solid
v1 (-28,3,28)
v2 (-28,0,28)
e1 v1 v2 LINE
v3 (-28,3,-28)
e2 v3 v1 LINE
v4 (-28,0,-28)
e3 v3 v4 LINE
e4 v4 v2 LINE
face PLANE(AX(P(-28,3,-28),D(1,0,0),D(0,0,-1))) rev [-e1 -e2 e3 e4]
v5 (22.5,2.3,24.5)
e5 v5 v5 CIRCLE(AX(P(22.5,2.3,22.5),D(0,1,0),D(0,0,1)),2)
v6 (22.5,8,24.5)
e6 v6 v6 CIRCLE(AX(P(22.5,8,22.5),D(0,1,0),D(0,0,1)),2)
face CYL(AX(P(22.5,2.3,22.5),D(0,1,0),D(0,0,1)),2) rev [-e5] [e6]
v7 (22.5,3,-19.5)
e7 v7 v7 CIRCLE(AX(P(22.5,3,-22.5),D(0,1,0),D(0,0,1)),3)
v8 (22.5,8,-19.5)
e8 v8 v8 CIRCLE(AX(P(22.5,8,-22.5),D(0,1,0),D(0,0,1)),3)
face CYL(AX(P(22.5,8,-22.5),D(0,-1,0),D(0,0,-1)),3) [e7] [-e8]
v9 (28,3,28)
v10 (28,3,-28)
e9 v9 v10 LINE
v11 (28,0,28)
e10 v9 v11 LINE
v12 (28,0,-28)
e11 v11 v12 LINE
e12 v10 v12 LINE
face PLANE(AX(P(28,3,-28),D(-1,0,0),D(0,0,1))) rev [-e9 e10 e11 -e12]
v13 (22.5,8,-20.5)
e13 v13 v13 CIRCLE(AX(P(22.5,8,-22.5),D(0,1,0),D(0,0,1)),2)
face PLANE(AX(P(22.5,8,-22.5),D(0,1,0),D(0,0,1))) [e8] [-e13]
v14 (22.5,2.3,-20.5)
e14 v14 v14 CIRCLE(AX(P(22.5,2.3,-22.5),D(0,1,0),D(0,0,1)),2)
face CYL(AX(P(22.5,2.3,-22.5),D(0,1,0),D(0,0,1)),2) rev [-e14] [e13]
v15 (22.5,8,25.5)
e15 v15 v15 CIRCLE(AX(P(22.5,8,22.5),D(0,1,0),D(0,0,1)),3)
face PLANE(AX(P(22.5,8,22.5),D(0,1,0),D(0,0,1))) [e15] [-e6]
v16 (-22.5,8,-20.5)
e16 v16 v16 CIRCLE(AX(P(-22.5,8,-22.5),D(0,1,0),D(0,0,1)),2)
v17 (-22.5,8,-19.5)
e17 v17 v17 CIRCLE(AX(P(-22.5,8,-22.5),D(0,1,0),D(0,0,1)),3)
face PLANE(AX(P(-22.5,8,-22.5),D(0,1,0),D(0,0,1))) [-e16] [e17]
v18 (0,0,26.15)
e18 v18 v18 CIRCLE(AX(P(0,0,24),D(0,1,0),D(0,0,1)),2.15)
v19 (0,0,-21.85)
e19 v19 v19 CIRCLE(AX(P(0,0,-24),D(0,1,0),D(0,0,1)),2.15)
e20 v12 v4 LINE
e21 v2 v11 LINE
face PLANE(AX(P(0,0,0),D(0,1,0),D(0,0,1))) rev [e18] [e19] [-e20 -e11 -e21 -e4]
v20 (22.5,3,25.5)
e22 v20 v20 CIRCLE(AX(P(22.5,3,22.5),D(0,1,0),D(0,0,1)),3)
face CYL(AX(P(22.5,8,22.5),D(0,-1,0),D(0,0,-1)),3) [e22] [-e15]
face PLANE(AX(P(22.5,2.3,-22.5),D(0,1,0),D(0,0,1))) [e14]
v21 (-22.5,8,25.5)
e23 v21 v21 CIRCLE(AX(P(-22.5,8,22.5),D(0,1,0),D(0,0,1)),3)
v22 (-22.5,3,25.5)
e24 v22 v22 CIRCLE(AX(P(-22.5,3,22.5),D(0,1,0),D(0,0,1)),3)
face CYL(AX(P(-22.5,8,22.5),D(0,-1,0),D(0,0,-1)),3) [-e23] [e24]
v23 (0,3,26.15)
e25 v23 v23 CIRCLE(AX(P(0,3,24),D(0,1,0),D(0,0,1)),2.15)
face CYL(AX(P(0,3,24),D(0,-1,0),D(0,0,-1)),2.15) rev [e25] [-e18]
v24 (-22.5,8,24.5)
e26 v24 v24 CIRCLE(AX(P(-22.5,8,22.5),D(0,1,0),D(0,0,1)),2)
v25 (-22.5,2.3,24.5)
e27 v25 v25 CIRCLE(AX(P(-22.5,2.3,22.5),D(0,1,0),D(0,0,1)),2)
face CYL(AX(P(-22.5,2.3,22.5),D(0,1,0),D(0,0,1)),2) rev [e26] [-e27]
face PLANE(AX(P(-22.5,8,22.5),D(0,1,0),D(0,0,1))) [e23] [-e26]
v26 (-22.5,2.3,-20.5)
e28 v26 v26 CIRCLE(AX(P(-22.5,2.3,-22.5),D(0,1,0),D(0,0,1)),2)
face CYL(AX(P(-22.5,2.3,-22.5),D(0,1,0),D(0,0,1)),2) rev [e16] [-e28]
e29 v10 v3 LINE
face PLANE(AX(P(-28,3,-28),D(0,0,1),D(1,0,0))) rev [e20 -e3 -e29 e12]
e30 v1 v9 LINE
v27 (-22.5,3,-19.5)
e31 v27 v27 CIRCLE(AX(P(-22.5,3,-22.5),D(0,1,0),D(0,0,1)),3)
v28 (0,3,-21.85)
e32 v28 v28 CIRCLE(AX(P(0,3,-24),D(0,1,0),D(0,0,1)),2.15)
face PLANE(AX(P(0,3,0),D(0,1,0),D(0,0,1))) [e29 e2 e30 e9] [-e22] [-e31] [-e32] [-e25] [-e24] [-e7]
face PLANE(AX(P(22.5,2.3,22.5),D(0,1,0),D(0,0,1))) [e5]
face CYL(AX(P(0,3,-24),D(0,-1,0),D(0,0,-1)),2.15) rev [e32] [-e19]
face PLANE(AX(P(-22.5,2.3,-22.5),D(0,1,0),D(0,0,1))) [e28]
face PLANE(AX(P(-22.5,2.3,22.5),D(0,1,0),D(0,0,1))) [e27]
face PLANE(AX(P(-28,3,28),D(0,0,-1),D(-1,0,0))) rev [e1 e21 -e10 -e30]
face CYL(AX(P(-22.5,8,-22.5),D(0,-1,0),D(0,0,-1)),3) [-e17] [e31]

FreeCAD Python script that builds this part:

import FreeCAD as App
import Part
import Sketcher


def add_polygon(sketch, points):
    """Adds a closed chain of lines whose ends are joined by coincident constraints."""
    first, n = sketch.GeometryCount, len(points)
    for a, b in zip(points, points[1:] + points[:1]):
        sketch.addGeometry(Part.LineSegment(App.Vector(*a, 0), App.Vector(*b, 0)), False)
    for i in range(n):
        sketch.addConstraint(Sketcher.Constraint("Coincident", first + i, 2, first + (i + 1) % n, 1))

doc = App.newDocument("Part")
body = doc.addObject("PartDesign::Body", "Body")

# Sketch on XZ plane
sketch1 = body.newObject("Sketcher::SketchObject", "Sketch")
sketch1.AttachmentSupport = (doc.getObject("XZ_Plane"), [""])
sketch1.MapMode = "FlatFace"
add_polygon(sketch1, [(-28, -28), (-28, 28), (28, 28), (28, -28)])  # lines 0-3
sketch1.addConstraint([
    Sketcher.Constraint("Vertical", 0),
    Sketcher.Constraint("Horizontal", 1),
    Sketcher.Constraint("Vertical", 2),
    Sketcher.Constraint("Horizontal", 3),
    Sketcher.Constraint("Symmetric", 0, 2, 2, 2, -1, 1),
    Sketcher.Constraint("Equal", 3, 0),
    Sketcher.Constraint("DistanceX", 1, 1, 1, 2, 56.0),
])
pad1 = body.newObject("PartDesign::Pad", "Pad")
pad1.Profile = sketch1
pad1.Length = 3
pad1.Reversed = True

# Sketch on XZ plane
sketch2 = body.newObject("Sketcher::SketchObject", "Sketch001")
sketch2.AttachmentSupport = (doc.getObject("XZ_Plane"), [""])
sketch2.MapMode = "FlatFace"
sketch2.AttachmentOffset = App.Placement(App.Vector(0, 0, -3), App.Rotation())
sketch2.addGeometry([
    Part.Circle(App.Vector(22.5, 22.5, 0), App.Vector(0, 0, 1), 3),
    Part.Circle(App.Vector(-22.5, 22.5, 0), App.Vector(0, 0, 1), 3),
    Part.Circle(App.Vector(22.5, -22.5, 0), App.Vector(0, 0, 1), 3),
    Part.Circle(App.Vector(-22.5, -22.5, 0), App.Vector(0, 0, 1), 3),
], False)
sketch2.addConstraint([
    Sketcher.Constraint("Equal", 0, 1),
    Sketcher.Constraint("Equal", 1, 2),
    Sketcher.Constraint("Equal", 2, 3),
    Sketcher.Constraint("Symmetric", 1, 3, 2, 3, -1, 1),
    Sketcher.Constraint("Symmetric", 0, 3, 3, 3, -1, 1),
    Sketcher.Constraint("Symmetric", 0, 3, 1, 3, -2),
    Sketcher.Constraint("Diameter", 0, 6.0),
    Sketcher.Constraint("DistanceX", 1, 3, 0, 3, 45.0),
    Sketcher.Constraint("DistanceY", 2, 3, 0, 3, 45.0),
])
pad2 = body.newObject("PartDesign::Pad", "Pad001")
pad2.Profile = sketch2
pad2.Length = 5
pad2.Reversed = True

# Sketch on XZ plane
sketch3 = body.newObject("Sketcher::SketchObject", "Sketch002")
sketch3.AttachmentSupport = (doc.getObject("XZ_Plane"), [""])
sketch3.MapMode = "FlatFace"
sketch3.AttachmentOffset = App.Placement(App.Vector(0, 0, -8), App.Rotation())
sketch3.addGeometry([
    Part.Circle(App.Vector(22.5, 22.5, 0), App.Vector(0, 0, 1), 2),
    Part.Circle(App.Vector(-22.5, 22.5, 0), App.Vector(0, 0, 1), 2),
    Part.Circle(App.Vector(22.5, -22.5, 0), App.Vector(0, 0, 1), 2),
    Part.Circle(App.Vector(-22.5, -22.5, 0), App.Vector(0, 0, 1), 2),
], False)
sketch3.addConstraint([
    Sketcher.Constraint("Equal", 0, 1),
    Sketcher.Constraint("Equal", 1, 2),
    Sketcher.Constraint("Equal", 2, 3),
    Sketcher.Constraint("Symmetric", 1, 3, 2, 3, -1, 1),
    Sketcher.Constraint("Symmetric", 0, 3, 3, 3, -1, 1),
    Sketcher.Constraint("Symmetric", 0, 3, 1, 3, -2),
    Sketcher.Constraint("Diameter", 0, 4.0),
    Sketcher.Constraint("DistanceX", 1, 3, 0, 3, 45.0),
    Sketcher.Constraint("DistanceY", 2, 3, 0, 3, 45.0),
])
pocket1 = body.newObject("PartDesign::Pocket", "Pocket")
pocket1.Profile = sketch3
pocket1.Length = 5.7
pocket1.Reversed = True

# Sketch on XZ plane
sketch4 = body.newObject("Sketcher::SketchObject", "Sketch003")
sketch4.AttachmentSupport = (doc.getObject("XZ_Plane"), [""])
sketch4.MapMode = "FlatFace"
sketch4.addGeometry([
    Part.Circle(App.Vector(0, 24, 0), App.Vector(0, 0, 1), 2.1),
    Part.Circle(App.Vector(0, -24, 0), App.Vector(0, 0, 1), 2.1),
], False)
sketch4.addConstraint([
    Sketcher.Constraint("Equal", 0, 1),
    Sketcher.Constraint("Symmetric", 0, 3, 1, 3, -1, 1),
    Sketcher.Constraint("PointOnObject", 0, 3, -2),
    Sketcher.Constraint("Diameter", 0, 4.3),
    Sketcher.Constraint("DistanceY", -1, 1, 0, 3, 24.0),
])
pocket2 = body.newObject("PartDesign::Pocket", "Pocket001")
pocket2.Profile = sketch4
pocket2.Length = 3

doc.recompute()
